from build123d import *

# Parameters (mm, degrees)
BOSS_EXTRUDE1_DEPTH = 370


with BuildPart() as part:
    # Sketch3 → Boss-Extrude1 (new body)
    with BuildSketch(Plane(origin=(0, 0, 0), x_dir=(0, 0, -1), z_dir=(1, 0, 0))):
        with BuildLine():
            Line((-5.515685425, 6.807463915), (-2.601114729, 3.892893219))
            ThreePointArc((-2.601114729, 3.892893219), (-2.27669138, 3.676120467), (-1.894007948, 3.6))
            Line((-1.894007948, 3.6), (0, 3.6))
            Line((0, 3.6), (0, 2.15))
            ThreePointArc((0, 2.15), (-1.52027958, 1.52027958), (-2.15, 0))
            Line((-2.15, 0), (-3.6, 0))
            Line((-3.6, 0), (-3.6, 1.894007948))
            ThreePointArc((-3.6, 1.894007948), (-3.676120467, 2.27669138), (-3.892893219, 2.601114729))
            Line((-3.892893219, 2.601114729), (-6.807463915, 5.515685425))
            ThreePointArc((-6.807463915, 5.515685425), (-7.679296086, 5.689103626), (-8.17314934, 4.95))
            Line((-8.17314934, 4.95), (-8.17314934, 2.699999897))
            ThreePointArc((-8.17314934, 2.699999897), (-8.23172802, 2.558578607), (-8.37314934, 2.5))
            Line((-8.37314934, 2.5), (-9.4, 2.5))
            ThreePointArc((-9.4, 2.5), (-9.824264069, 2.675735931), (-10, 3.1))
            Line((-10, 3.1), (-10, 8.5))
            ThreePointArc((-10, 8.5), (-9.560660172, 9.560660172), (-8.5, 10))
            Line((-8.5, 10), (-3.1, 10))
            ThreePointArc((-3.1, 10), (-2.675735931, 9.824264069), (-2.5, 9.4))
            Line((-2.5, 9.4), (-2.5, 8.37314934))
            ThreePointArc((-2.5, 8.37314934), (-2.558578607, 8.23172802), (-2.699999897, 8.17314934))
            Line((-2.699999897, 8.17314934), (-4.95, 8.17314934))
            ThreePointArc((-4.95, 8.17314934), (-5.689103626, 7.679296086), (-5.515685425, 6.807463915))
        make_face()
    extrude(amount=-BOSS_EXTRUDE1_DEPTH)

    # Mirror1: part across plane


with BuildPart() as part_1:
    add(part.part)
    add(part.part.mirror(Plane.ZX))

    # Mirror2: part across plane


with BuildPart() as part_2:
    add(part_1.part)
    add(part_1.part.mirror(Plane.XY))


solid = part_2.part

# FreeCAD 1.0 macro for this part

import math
import FreeCAD as App
import Part
import Sketcher

V = App.Vector
Q = App.Units.Quantity

doc = App.newDocument("Part")
body = doc.addObject("PartDesign::Body", "Body")

# Sketch on YZ plane
sketch1 = body.newObject("Sketcher::SketchObject", "Sketch")
sketch1.AttachmentSupport = (doc.getObject("YZ_Plane"), [""])
sketch1.MapMode = "FlatFace"
sketch1.addGeometry(Part.LineSegment(V(3.89, 2.6, 0), V(6.81, 5.52, 0)), False)
sketch1.addGeometry(Part.ArcOfCircle(Part.Circle(V(7.37, 4.95, 0), V(0, 0, 1), 0.8), math.radians(0), math.radians(135)), False)
sketch1.addGeometry(Part.LineSegment(V(8.17, 4.95, 0), V(8.17, 2.7, 0)), False)
sketch1.addGeometry(Part.ArcOfCircle(Part.Circle(V(8.37, 2.7, 0), V(0, 0, 1), 0.2), math.radians(-180), math.radians(-90)), False)
sketch1.addGeometry(Part.LineSegment(V(8.37, 2.5, 0), V(9.4, 2.5, 0)), False)
sketch1.addGeometry(Part.ArcOfCircle(Part.Circle(V(9.4, 3.1, 0), V(0, 0, 1), 0.6), math.radians(-90), math.radians(0)), False)
sketch1.addGeometry(Part.LineSegment(V(10, 3.1, 0), V(10, 8.5, 0)), False)
sketch1.addGeometry(Part.ArcOfCircle(Part.Circle(V(8.5, 8.5, 0), V(0, 0, 1), 1.5), math.radians(0), math.radians(90)), False)
sketch1.addGeometry(Part.LineSegment(V(8.5, 10, 0), V(3.1, 10, 0)), False)
sketch1.addGeometry(Part.ArcOfCircle(Part.Circle(V(3.1, 9.4, 0), V(0, 0, 1), 0.6), math.radians(90), math.radians(180)), False)
sketch1.addGeometry(Part.LineSegment(V(2.5, 9.4, 0), V(2.5, 8.37, 0)), False)
sketch1.addGeometry(Part.ArcOfCircle(Part.Circle(V(2.7, 8.37, 0), V(0, 0, 1), 0.2), math.radians(180), math.radians(270)), False)
sketch1.addGeometry(Part.LineSegment(V(2.7, 8.17, 0), V(4.95, 8.17, 0)), False)
sketch1.addGeometry(Part.ArcOfCircle(Part.Circle(V(4.95, 7.37, 0), V(0, 0, 1), 0.8), math.radians(-45), math.radians(90)), False)
sketch1.addGeometry(Part.LineSegment(V(5.52, 6.81, 0), V(2.6, 3.89, 0)), False)
sketch1.addGeometry(Part.ArcOfCircle(Part.Circle(V(1.89, 4.6, 0), V(0, 0, 1), 1), math.radians(-90), math.radians(-45)), False)
sketch1.addGeometry(Part.LineSegment(V(1.89, 3.6, 0), V(0, 3.6, 0)), False)
sketch1.addGeometry(Part.LineSegment(V(0, 3.6, 0), V(0, 2.15, 0)), False)
sketch1.addGeometry(Part.ArcOfCircle(Part.Circle(V(0, 0, 0), V(0, 0, 1), 2.15), math.radians(0), math.radians(90)), False)
sketch1.addGeometry(Part.LineSegment(V(2.15, 0, 0), V(3.6, 0, 0)), False)
sketch1.addGeometry(Part.LineSegment(V(3.6, 0, 0), V(3.6, 1.89, 0)), False)
sketch1.addGeometry(Part.ArcOfCircle(Part.Circle(V(4.6, 1.89, 0), V(0, 0, 1), 1), math.radians(135), math.radians(180)), False)
sketch1.addConstraint(Sketcher.Constraint("Tangent", 0, 2, 1, 2))
sketch1.addConstraint(Sketcher.Constraint("Tangent", 1, 1, 2, 1))
sketch1.addConstraint(Sketcher.Constraint("Tangent", 2, 2, 3, 1))
sketch1.addConstraint(Sketcher.Constraint("Tangent", 3, 2, 4, 1))
sketch1.addConstraint(Sketcher.Constraint("Tangent", 4, 2, 5, 1))
sketch1.addConstraint(Sketcher.Constraint("Tangent", 5, 2, 6, 1))
sketch1.addConstraint(Sketcher.Constraint("Tangent", 6, 2, 7, 1))
sketch1.addConstraint(Sketcher.Constraint("Tangent", 7, 2, 8, 1))
sketch1.addConstraint(Sketcher.Constraint("Tangent", 8, 2, 9, 1))
sketch1.addConstraint(Sketcher.Constraint("Tangent", 9, 2, 10, 1))
sketch1.addConstraint(Sketcher.Constraint("Tangent", 10, 2, 11, 1))
sketch1.addConstraint(Sketcher.Constraint("Tangent", 11, 2, 12, 1))
sketch1.addConstraint(Sketcher.Constraint("Tangent", 12, 2, 13, 2))
sketch1.addConstraint(Sketcher.Constraint("Tangent", 13, 1, 14, 1))
sketch1.addConstraint(Sketcher.Constraint("Tangent", 14, 2, 15, 2))
sketch1.addConstraint(Sketcher.Constraint("Tangent", 15, 1, 16, 1))
sketch1.addConstraint(Sketcher.Constraint("Coincident", 16, 2, 17, 1))
sketch1.addConstraint(Sketcher.Constraint("Coincident", 17, 2, 18, 2))
sketch1.addConstraint(Sketcher.Constraint("Coincident", 18, 1, 19, 1))
sketch1.addConstraint(Sketcher.Constraint("Coincident", 19, 2, 20, 1))
sketch1.addConstraint(Sketcher.Constraint("Tangent", 20, 2, 21, 2))
sketch1.addConstraint(Sketcher.Constraint("Tangent", 21, 1, 0, 1))
sketch1.addConstraint(Sketcher.Constraint("Vertical", 2))
sketch1.addConstraint(Sketcher.Constraint("Horizontal", 4))
sketch1.addConstraint(Sketcher.Constraint("Vertical", 6))
sketch1.addConstraint(Sketcher.Constraint("Horizontal", 8))
sketch1.addConstraint(Sketcher.Constraint("Vertical", 10))
sketch1.addConstraint(Sketcher.Constraint("Horizontal", 12))
sketch1.addConstraint(Sketcher.Constraint("Horizontal", 16))
sketch1.addConstraint(Sketcher.Constraint("Vertical", 17))
sketch1.addConstraint(Sketcher.Constraint("Horizontal", 19))
sketch1.addConstraint(Sketcher.Constraint("Vertical", 20))
sketch1.addConstraint(Sketcher.Constraint("Coincident", 18, 3, -1, 1))
sketch1.addConstraint(Sketcher.Constraint("Equal", 5, 9))
sketch1.addConstraint(Sketcher.Constraint("Equal", 3, 11))
sketch1.addConstraint(Sketcher.Constraint("Equal", 1, 13))
sketch1.addConstraint(Sketcher.Constraint("Equal", 15, 21))
sketch1.addConstraint(Sketcher.Constraint("PointOnObject", 16, 2, -2))
sketch1.addConstraint(Sketcher.Constraint("PointOnObject", 18, 1, -1))
sketch1.addConstraint(Sketcher.Constraint("Parallel", 0, 14))
sketch1.addConstraint(Sketcher.Constraint("Equal", 12, 2))
sketch1.addConstraint(Sketcher.Constraint("Equal", 8, 6))
sketch1.addConstraint(Sketcher.Constraint("Equal", 4, 10))
sketch1.addConstraint(Sketcher.Constraint("Equal", 19, 17))
sketch1.addConstraint(Sketcher.Constraint("Equal", 16, 20))
sketch1.addConstraint(Sketcher.Constraint("Equal", 0, 14))
sketch1.addConstraint(Sketcher.Constraint("Radius", 15, Q("1 mm")))
sketch1.addConstraint(Sketcher.Constraint("Radius", 1, Q("0.8 mm")))
sketch1.addConstraint(Sketcher.Constraint("Radius", 3, Q("0.2 mm")))
sketch1.addConstraint(Sketcher.Constraint("Radius", 5, Q("0.6 mm")))
sketch1.addConstraint(Sketcher.Constraint("Radius", 7, Q("1.5 mm")))
sketch1.addConstraint(Sketcher.Constraint("Radius", 18, Q("2.15 mm")))
sketch1.addConstraint(Sketcher.Constraint("DistanceX", 8, 2, 8, 1, Q("5.4 mm")))
sketch1.addConstraint(Sketcher.Constraint("DistanceX", -1, 1, 5, 2, Q("10 mm")))
sketch1.addConstraint(Sketcher.Constraint("DistanceX", 12, 1, 12, 2, Q("2.25 mm")))
sketch1.addConstraint(Sketcher.Constraint("DistanceX", 19, 1, 19, 2, Q("1.45 mm")))
sketch1.addConstraint(Sketcher.Constraint("DistanceX", 4, 1, 4, 2, Q("1.026851 mm")))
pad1 = body.newObject("PartDesign::Pad", "Pad")
pad1.Profile = sketch1
pad1.Length = 370
pad1.Reversed = True
body2 = doc.addObject("PartDesign::Body", "Body001")
doc.recompute()

body2.BaseFeature = body
doc.recompute()

mirroring = doc.addObject("Part::Mirroring", "Mirroring")
mirroring.Source = body
mirroring.Base = V(0, 0, 0)
mirroring.Normal = V(0, 1, 0)
body3 = doc.addObject("PartDesign::Body", "Body002")
body3.BaseFeature = mirroring
boolean = body2.newObject("PartDesign::Boolean", "Boolean")
boolean.Type = "Fuse"
boolean.addObjects([body3])
doc.recompute()
body4 = doc.addObject("PartDesign::Body", "Body003")
doc.recompute()

body4.BaseFeature = body2
doc.recompute()

mirroring2 = doc.addObject("Part::Mirroring", "Mirroring001")
mirroring2.Source = body2
mirroring2.Base = V(0, 0, 0)
mirroring2.Normal = V(0, 0, 1)
body5 = doc.addObject("PartDesign::Body", "Body004")
body5.BaseFeature = mirroring2
boolean2 = body4.newObject("PartDesign::Boolean", "Boolean001")
boolean2.Type = "Fuse"
boolean2.addObjects([body5])
doc.recompute()
mirroring.Visibility = False
mirroring2.Visibility = False

doc.recompute()
